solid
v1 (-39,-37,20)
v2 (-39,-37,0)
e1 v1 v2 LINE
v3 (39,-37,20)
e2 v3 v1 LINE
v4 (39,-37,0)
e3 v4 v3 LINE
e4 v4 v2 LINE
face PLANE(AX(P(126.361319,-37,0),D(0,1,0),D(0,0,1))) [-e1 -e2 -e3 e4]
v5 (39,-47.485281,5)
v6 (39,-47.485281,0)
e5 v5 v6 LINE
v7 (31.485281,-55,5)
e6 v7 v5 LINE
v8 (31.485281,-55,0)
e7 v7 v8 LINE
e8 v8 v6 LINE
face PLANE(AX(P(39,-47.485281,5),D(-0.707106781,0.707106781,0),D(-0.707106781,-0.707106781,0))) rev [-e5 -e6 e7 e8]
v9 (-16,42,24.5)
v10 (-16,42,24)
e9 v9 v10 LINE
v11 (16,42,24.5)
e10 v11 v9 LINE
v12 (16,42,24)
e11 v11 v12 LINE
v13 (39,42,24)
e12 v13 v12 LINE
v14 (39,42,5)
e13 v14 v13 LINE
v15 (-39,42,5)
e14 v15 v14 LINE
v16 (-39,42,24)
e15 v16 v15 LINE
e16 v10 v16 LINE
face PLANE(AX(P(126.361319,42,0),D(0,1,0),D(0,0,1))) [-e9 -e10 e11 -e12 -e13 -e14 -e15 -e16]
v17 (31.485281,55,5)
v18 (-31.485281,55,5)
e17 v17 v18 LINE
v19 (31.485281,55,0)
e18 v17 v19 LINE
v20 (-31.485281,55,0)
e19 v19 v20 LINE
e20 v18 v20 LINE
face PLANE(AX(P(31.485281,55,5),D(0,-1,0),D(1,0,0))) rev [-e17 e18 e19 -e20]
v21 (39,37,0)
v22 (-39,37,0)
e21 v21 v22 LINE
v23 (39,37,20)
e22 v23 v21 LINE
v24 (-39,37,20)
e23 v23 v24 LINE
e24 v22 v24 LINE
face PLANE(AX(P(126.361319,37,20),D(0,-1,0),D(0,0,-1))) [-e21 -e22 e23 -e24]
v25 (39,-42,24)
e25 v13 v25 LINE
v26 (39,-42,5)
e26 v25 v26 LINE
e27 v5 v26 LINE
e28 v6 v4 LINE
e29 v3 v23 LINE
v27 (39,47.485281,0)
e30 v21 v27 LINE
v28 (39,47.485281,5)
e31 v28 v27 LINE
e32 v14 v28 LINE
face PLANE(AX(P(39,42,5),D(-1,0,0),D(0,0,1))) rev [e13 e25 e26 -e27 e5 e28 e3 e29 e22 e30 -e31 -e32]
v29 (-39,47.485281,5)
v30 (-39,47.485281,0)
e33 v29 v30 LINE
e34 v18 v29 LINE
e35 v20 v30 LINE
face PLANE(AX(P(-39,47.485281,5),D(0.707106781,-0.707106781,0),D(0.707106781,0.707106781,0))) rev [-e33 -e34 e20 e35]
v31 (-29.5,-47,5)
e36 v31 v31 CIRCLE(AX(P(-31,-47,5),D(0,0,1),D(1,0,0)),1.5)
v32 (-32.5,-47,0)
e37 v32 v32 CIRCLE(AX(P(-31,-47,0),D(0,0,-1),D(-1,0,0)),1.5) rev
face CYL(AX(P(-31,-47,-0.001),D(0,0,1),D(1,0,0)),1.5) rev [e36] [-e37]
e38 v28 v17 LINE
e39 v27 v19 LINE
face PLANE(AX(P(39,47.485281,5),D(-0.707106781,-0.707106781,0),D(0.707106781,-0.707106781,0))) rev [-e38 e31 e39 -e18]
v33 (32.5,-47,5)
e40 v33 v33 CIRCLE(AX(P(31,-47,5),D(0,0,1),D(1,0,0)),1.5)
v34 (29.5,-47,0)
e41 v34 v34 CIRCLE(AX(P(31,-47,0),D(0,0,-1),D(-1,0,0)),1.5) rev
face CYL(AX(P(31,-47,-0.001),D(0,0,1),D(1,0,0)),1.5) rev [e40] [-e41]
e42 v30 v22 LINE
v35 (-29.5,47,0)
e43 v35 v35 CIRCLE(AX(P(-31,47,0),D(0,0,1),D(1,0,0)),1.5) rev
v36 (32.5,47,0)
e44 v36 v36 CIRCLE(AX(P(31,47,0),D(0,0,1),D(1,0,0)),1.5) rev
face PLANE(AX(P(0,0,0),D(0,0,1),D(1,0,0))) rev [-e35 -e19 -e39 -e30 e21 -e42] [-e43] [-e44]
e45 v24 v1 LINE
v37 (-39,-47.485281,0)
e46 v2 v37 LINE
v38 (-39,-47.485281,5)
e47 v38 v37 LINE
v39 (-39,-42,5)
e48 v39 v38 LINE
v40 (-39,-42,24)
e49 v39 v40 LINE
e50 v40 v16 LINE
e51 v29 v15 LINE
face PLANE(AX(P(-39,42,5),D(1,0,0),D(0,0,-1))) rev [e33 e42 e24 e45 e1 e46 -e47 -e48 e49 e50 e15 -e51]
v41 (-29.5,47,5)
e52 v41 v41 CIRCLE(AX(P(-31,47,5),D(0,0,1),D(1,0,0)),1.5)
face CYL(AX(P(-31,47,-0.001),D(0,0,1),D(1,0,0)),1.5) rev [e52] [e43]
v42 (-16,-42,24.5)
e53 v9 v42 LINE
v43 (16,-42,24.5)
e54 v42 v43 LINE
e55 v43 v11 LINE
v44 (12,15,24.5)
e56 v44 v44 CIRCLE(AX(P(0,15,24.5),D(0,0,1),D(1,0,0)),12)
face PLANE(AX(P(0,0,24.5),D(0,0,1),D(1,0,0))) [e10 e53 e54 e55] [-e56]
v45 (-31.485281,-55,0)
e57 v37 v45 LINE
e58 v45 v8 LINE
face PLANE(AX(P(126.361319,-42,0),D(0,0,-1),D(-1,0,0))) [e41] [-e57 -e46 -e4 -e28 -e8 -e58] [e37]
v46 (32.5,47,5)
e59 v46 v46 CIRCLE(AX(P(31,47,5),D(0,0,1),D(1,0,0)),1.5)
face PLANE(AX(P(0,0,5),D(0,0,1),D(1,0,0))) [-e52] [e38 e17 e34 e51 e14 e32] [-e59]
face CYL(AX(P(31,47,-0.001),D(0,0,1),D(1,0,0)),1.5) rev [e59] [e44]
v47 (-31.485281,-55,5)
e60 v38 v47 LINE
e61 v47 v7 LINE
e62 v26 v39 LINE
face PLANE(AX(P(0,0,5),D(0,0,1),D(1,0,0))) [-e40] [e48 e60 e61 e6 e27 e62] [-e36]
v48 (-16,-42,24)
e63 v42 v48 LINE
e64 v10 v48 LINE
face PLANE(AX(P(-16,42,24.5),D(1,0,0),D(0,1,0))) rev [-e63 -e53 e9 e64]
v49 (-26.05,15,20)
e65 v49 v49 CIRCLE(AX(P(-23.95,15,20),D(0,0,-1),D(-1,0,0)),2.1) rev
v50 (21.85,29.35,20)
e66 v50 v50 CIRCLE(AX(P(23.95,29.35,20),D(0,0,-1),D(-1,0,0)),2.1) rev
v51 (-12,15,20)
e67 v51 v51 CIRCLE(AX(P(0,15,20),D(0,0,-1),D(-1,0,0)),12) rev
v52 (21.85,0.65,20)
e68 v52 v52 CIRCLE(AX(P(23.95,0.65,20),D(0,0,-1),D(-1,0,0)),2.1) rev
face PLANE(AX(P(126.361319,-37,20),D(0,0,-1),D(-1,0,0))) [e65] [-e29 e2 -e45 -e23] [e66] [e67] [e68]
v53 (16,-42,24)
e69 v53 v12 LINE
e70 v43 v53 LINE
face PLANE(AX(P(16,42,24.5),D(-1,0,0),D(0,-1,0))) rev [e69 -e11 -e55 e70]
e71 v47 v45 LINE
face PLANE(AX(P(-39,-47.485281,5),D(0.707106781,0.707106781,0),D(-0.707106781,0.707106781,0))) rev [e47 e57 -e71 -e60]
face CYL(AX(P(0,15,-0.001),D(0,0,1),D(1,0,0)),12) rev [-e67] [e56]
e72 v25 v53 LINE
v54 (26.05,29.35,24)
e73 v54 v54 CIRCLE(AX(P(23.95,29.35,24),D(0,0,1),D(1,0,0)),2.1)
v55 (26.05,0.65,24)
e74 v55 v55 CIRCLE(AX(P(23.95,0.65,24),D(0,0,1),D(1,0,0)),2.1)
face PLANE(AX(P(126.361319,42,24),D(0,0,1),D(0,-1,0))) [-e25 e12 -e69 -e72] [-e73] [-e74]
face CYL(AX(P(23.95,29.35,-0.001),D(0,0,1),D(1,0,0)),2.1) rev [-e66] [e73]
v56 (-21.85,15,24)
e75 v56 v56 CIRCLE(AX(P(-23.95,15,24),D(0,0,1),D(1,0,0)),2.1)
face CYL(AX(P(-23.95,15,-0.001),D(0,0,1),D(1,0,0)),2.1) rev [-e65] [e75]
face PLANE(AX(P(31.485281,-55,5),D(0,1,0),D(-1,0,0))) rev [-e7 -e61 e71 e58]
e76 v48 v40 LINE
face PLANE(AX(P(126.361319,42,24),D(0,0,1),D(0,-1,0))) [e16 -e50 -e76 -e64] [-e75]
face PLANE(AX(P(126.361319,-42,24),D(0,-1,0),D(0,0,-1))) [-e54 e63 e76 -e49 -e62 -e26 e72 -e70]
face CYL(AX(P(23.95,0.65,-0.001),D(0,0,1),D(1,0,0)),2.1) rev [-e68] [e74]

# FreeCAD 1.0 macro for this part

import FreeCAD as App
import Part
import Sketcher

doc = App.newDocument("Part")
body = doc.addObject("PartDesign::Body", "Body")

# Sketch on XY plane
sketch1 = body.newObject("Sketcher::SketchObject", "Sketch")
sketch1.AttachmentSupport = (doc.getObject("XY_Plane"), [""])
sketch1.MapMode = "FlatFace"
sketch1.addGeometry(Part.LineSegment(App.Vector(-39, 42, 0), App.Vector(39, 42, 0)), False)
sketch1.addGeometry(Part.LineSegment(App.Vector(39, 42, 0), App.Vector(39, 47.485281, 0)), False)
sketch1.addGeometry(Part.LineSegment(App.Vector(39, 47.485281, 0), App.Vector(31.485281, 55, 0)), False)
sketch1.addGeometry(Part.LineSegment(App.Vector(31.485281, 55, 0), App.Vector(-31.485281, 55, 0)), False)
sketch1.addGeometry(Part.LineSegment(App.Vector(-31.485281, 55, 0), App.Vector(-39, 47.485281, 0)), False)
sketch1.addGeometry(Part.LineSegment(App.Vector(-39, 47.485281, 0), App.Vector(-39, 42, 0)), False)
sketch1.addConstraint(Sketcher.Constraint("Coincident", 0, 2, 1, 1))
sketch1.addConstraint(Sketcher.Constraint("Coincident", 1, 2, 2, 1))
sketch1.addConstraint(Sketcher.Constraint("Coincident", 2, 2, 3, 1))
sketch1.addConstraint(Sketcher.Constraint("Coincident", 3, 2, 4, 1))
sketch1.addConstraint(Sketcher.Constraint("Coincident", 4, 2, 5, 1))
sketch1.addConstraint(Sketcher.Constraint("Coincident", 5, 2, 0, 1))
sketch1.addConstraint(Sketcher.Constraint("Horizontal", 0))
sketch1.addConstraint(Sketcher.Constraint("Vertical", 1))
sketch1.addConstraint(Sketcher.Constraint("Horizontal", 3))
sketch1.addConstraint(Sketcher.Constraint("Vertical", 5))
sketch1.addConstraint(Sketcher.Constraint("Symmetric", 1, 2, 4, 2, -2))
sketch1.addConstraint(Sketcher.Constraint("Perpendicular", 2, 4))
sketch1.addConstraint(Sketcher.Constraint("Equal", 2, 4))
sketch1.addConstraint(Sketcher.Constraint("DistanceX", 0, 1, 0, 2, 78.0))
sketch1.addConstraint(Sketcher.Constraint("DistanceY", -1, 1, 0, 2, 42.0))
sketch1.addConstraint(Sketcher.Constraint("DistanceY", -1, 1, 2, 2, 55.0))
sketch1.addConstraint(Sketcher.Constraint("DistanceY", 1, 1, 1, 2, 5.485281))
pad1 = body.newObject("PartDesign::Pad", "Pad")
pad1.Profile = sketch1
pad1.Length = 5
body2 = doc.addObject("PartDesign::Body", "Body001")

# Sketch on XY plane
sketch2 = body2.newObject("Sketcher::SketchObject", "Sketch001")
sketch2.AttachmentSupport = (doc.getObject("XY_Plane001"), [""])
sketch2.MapMode = "FlatFace"
sketch2.addGeometry(Part.LineSegment(App.Vector(-31.485281, -55, 0), App.Vector(31.485281, -55, 0)), False)
sketch2.addGeometry(Part.LineSegment(App.Vector(31.485281, -55, 0), App.Vector(39, -47.485281, 0)), False)
sketch2.addGeometry(Part.LineSegment(App.Vector(39, -47.485281, 0), App.Vector(39, -42, 0)), False)
sketch2.addGeometry(Part.LineSegment(App.Vector(39, -42, 0), App.Vector(-39, -42, 0)), False)
sketch2.addGeometry(Part.LineSegment(App.Vector(-39, -42, 0), App.Vector(-39, -47.485281, 0)), False)
sketch2.addGeometry(Part.LineSegment(App.Vector(-39, -47.485281, 0), App.Vector(-31.485281, -55, 0)), False)
sketch2.addConstraint(Sketcher.Constraint("Coincident", 0, 2, 1, 1))
sketch2.addConstraint(Sketcher.Constraint("Coincident", 1, 2, 2, 1))
sketch2.addConstraint(Sketcher.Constraint("Coincident", 2, 2, 3, 1))
sketch2.addConstraint(Sketcher.Constraint("Coincident", 3, 2, 4, 1))
sketch2.addConstraint(Sketcher.Constraint("Coincident", 4, 2, 5, 1))
sketch2.addConstraint(Sketcher.Constraint("Coincident", 5, 2, 0, 1))
sketch2.addConstraint(Sketcher.Constraint("Horizontal", 0))
sketch2.addConstraint(Sketcher.Constraint("Vertical", 2))
sketch2.addConstraint(Sketcher.Constraint("Horizontal", 3))
sketch2.addConstraint(Sketcher.Constraint("Vertical", 4))
sketch2.addConstraint(Sketcher.Constraint("Symmetric", 1, 2, 4, 2, -2))
sketch2.addConstraint(Sketcher.Constraint("Perpendicular", 1, 5))
sketch2.addConstraint(Sketcher.Constraint("Equal", 1, 5))
sketch2.addConstraint(Sketcher.Constraint("DistanceX", 3, 2, 3, 1, 78.0))
sketch2.addConstraint(Sketcher.Constraint("DistanceY", 0, 2, -1, 1, 55.0))
sketch2.addConstraint(Sketcher.Constraint("DistanceY", 2, 2, -1, 1, 42.0))
sketch2.addConstraint(Sketcher.Constraint("DistanceY", 2, 1, 2, 2, 5.485281))
pad2 = body2.newObject("PartDesign::Pad", "Pad001")
pad2.Profile = sketch2
pad2.Length = 5
body.AllowCompound = True
doc.recompute()

boolean = body.newObject("PartDesign::Boolean", "Boolean")
boolean.Type = "Fuse"
boolean.addObjects([body2])

# Sketch on YZ plane
sketch3 = body.newObject("Sketcher::SketchObject", "Sketch002")
sketch3.AttachmentSupport = (doc.getObject("YZ_Plane"), [""])
sketch3.MapMode = "FlatFace"
sketch3.AttachmentOffset = App.Placement(App.Vector(0, 0, -39), App.Rotation())
sketch3.addGeometry(Part.LineSegment(App.Vector(42, 24, 0), App.Vector(42, 0, 0)), False)
sketch3.addGeometry(Part.LineSegment(App.Vector(42, 0, 0), App.Vector(37, 0, 0)), False)
sketch3.addGeometry(Part.LineSegment(App.Vector(37, 0, 0), App.Vector(37, 20, 0)), False)
sketch3.addGeometry(Part.LineSegment(App.Vector(37, 20, 0), App.Vector(-37, 20, 0)), False)
sketch3.addGeometry(Part.LineSegment(App.Vector(-37, 20, 0), App.Vector(-37, 0, 0)), False)
sketch3.addGeometry(Part.LineSegment(App.Vector(-37, 0, 0), App.Vector(-42, 0, 0)), False)
sketch3.addGeometry(Part.LineSegment(App.Vector(-42, 0, 0), App.Vector(-42, 24, 0)), False)
sketch3.addGeometry(Part.LineSegment(App.Vector(-42, 24, 0), App.Vector(42, 24, 0)), False)
sketch3.addConstraint(Sketcher.Constraint("Coincident", 0, 2, 1, 1))
sketch3.addConstraint(Sketcher.Constraint("Coincident", 1, 2, 2, 1))
sketch3.addConstraint(Sketcher.Constraint("Coincident", 2, 2, 3, 1))
sketch3.addConstraint(Sketcher.Constraint("Coincident", 3, 2, 4, 1))
sketch3.addConstraint(Sketcher.Constraint("Coincident", 4, 2, 5, 1))
sketch3.addConstraint(Sketcher.Constraint("Coincident", 5, 2, 6, 1))
sketch3.addConstraint(Sketcher.Constraint("Coincident", 6, 2, 7, 1))
sketch3.addConstraint(Sketcher.Constraint("Coincident", 7, 2, 0, 1))
sketch3.addConstraint(Sketcher.Constraint("Vertical", 0))
sketch3.addConstraint(Sketcher.Constraint("Horizontal", 1))
sketch3.addConstraint(Sketcher.Constraint("Vertical", 2))
sketch3.addConstraint(Sketcher.Constraint("Horizontal", 3))
sketch3.addConstraint(Sketcher.Constraint("Vertical", 4))
sketch3.addConstraint(Sketcher.Constraint("Horizontal", 5))
sketch3.addConstraint(Sketcher.Constraint("Vertical", 6))
sketch3.addConstraint(Sketcher.Constraint("Horizontal", 7))
sketch3.addConstraint(Sketcher.Constraint("Symmetric", 1, 2, 4, 2, -1, 1))
sketch3.addConstraint(Sketcher.Constraint("Symmetric", 0, 2, 5, 2, -2))
sketch3.addConstraint(Sketcher.Constraint("DistanceX", 1, 2, 1, 1, 5.0))
sketch3.addConstraint(Sketcher.Constraint("DistanceX", 3, 2, 3, 1, 74.0))
sketch3.addConstraint(Sketcher.Constraint("DistanceY", 0, 2, 0, 1, 24.0))
sketch3.addConstraint(Sketcher.Constraint("DistanceY", 2, 1, 2, 2, 20.0))
pad3 = body.newObject("PartDesign::Pad", "Pad002")
pad3.Profile = sketch3
pad3.Length = 78

# Sketch on XY plane
sketch4 = body.newObject("Sketcher::SketchObject", "Sketch003")
sketch4.AttachmentSupport = (doc.getObject("XY_Plane"), [""])
sketch4.MapMode = "FlatFace"
sketch4.AttachmentOffset = App.Placement(App.Vector(0, 0, 24), App.Rotation())
sketch4.addGeometry(Part.Circle(App.Vector(0, 15, 0), App.Vector(0, 0, 1), 12), False)
sketch4.addConstraint(Sketcher.Constraint("PointOnObject", 0, 3, -2))
sketch4.addConstraint(Sketcher.Constraint("Diameter", 0, 24.0))
sketch4.addConstraint(Sketcher.Constraint("DistanceY", -1, 1, 0, 3, 15.0))
pocket1 = body.newObject("PartDesign::Pocket", "Pocket")
pocket1.Profile = sketch4
pocket1.Type = "UpToFirst"

# Sketch on XY plane
sketch5 = body.newObject("Sketcher::SketchObject", "Sketch004")
sketch5.AttachmentSupport = (doc.getObject("XY_Plane"), [""])
sketch5.MapMode = "FlatFace"
sketch5.AttachmentOffset = App.Placement(App.Vector(0, 0, 24.5), App.Rotation())
sketch5.addGeometry(Part.LineSegment(App.Vector(-16, 42, 0), App.Vector(-16, -42, 0)), False)
sketch5.addGeometry(Part.LineSegment(App.Vector(-16, -42, 0), App.Vector(16, -42, 0)), False)
sketch5.addGeometry(Part.LineSegment(App.Vector(16, -42, 0), App.Vector(16, 42, 0)), False)
sketch5.addGeometry(Part.LineSegment(App.Vector(16, 42, 0), App.Vector(-16, 42, 0)), False)
sketch5.addGeometry(Part.Circle(App.Vector(0, 15, 0), App.Vector(0, 0, 1), 12), False)
sketch5.addConstraint(Sketcher.Constraint("Coincident", 0, 2, 1, 1))
sketch5.addConstraint(Sketcher.Constraint("Coincident", 1, 2, 2, 1))
sketch5.addConstraint(Sketcher.Constraint("Coincident", 2, 2, 3, 1))
sketch5.addConstraint(Sketcher.Constraint("Coincident", 3, 2, 0, 1))
sketch5.addConstraint(Sketcher.Constraint("Vertical", 0))
sketch5.addConstraint(Sketcher.Constraint("Horizontal", 1))
sketch5.addConstraint(Sketcher.Constraint("Vertical", 2))
sketch5.addConstraint(Sketcher.Constraint("Horizontal", 3))
sketch5.addConstraint(Sketcher.Constraint("Symmetric", 0, 2, 2, 2, -1, 1))
sketch5.addConstraint(Sketcher.Constraint("PointOnObject", 4, 3, -2))
sketch5.addConstraint(Sketcher.Constraint("Diameter", 4, 24.0))
sketch5.addConstraint(Sketcher.Constraint("DistanceX", 1, 1, 1, 2, 32.0))
sketch5.addConstraint(Sketcher.Constraint("DistanceY", 0, 2, 0, 1, 84.0))
sketch5.addConstraint(Sketcher.Constraint("DistanceY", -1, 1, 4, 3, 15.0))
pad4 = body.newObject("PartDesign::Pad", "Pad003")
pad4.Profile = sketch5
pad4.Length = 0.5
pad4.Reversed = True

# Sketch on XY plane
sketch6 = body.newObject("Sketcher::SketchObject", "Sketch005")
sketch6.AttachmentSupport = (doc.getObject("XY_Plane"), [""])
sketch6.MapMode = "FlatFace"
sketch6.AttachmentOffset = App.Placement(App.Vector(0, 0, 24), App.Rotation())
sketch6.addGeometry(Part.Circle(App.Vector(-23.95, 15, 0), App.Vector(0, 0, 1), 2.1), False)
sketch6.addConstraint(Sketcher.Constraint("Diameter", 0, 4.2))
sketch6.addConstraint(Sketcher.Constraint("DistanceY", -1, 1, 0, 3, 15.0))
sketch6.addConstraint(Sketcher.Constraint("DistanceX", 0, 3, -1, 1, 23.95))
pocket2 = body.newObject("PartDesign::Pocket", "Pocket001")
pocket2.Profile = sketch6
pocket2.Type = "UpToFirst"

# Sketch on XY plane
sketch7 = body.newObject("Sketcher::SketchObject", "Sketch006")
sketch7.AttachmentSupport = (doc.getObject("XY_Plane"), [""])
sketch7.MapMode = "FlatFace"
sketch7.AttachmentOffset = App.Placement(App.Vector(0, 0, 24), App.Rotation())
sketch7.addGeometry(Part.Circle(App.Vector(23.95, 29.35, 0), App.Vector(0, 0, 1), 2.1), False)
sketch7.addConstraint(Sketcher.Constraint("Diameter", 0, 4.2))
sketch7.addConstraint(Sketcher.Constraint("DistanceX", -1, 1, 0, 3, 23.95))
sketch7.addConstraint(Sketcher.Constraint("DistanceY", -1, 1, 0, 3, 29.35))
pocket3 = body.newObject("PartDesign::Pocket", "Pocket002")
pocket3.Profile = sketch7
pocket3.Type = "UpToFirst"

# Sketch on XY plane
sketch8 = body.newObject("Sketcher::SketchObject", "Sketch007")
sketch8.AttachmentSupport = (doc.getObject("XY_Plane"), [""])
sketch8.MapMode = "FlatFace"
sketch8.AttachmentOffset = App.Placement(App.Vector(0, 0, 24), App.Rotation())
sketch8.addGeometry(Part.Circle(App.Vector(23.95, 0.65, 0), App.Vector(0, 0, 1), 2.1), False)
sketch8.addConstraint(Sketcher.Constraint("Diameter", 0, 4.2))
sketch8.addConstraint(Sketcher.Constraint("DistanceX", -1, 1, 0, 3, 23.95))
sketch8.addConstraint(Sketcher.Constraint("DistanceY", -1, 1, 0, 3, 0.65))
pocket4 = body.newObject("PartDesign::Pocket", "Pocket003")
pocket4.Profile = sketch8
pocket4.Type = "UpToFirst"

# Sketch on XY plane
sketch9 = body.newObject("Sketcher::SketchObject", "Sketch008")
sketch9.AttachmentSupport = (doc.getObject("XY_Plane"), [""])
sketch9.MapMode = "FlatFace"
sketch9.AttachmentOffset = App.Placement(App.Vector(0, 0, 5), App.Rotation())
sketch9.addGeometry(Part.Circle(App.Vector(-31, 47, 0), App.Vector(0, 0, 1), 1.5), False)
sketch9.addConstraint(Sketcher.Constraint("Diameter", 0, 3.0))
sketch9.addConstraint(Sketcher.Constraint("DistanceX", 0, 3, -1, 1, 31.0))
sketch9.addConstraint(Sketcher.Constraint("DistanceY", -1, 1, 0, 3, 47.0))
pocket5 = body.newObject("PartDesign::Pocket", "Pocket004")
pocket5.Profile = sketch9
pocket5.Type = "UpToFirst"

# Sketch on XY plane
sketch10 = body.newObject("Sketcher::SketchObject", "Sketch009")
sketch10.AttachmentSupport = (doc.getObject("XY_Plane"), [""])
sketch10.MapMode = "FlatFace"
sketch10.AttachmentOffset = App.Placement(App.Vector(0, 0, 5), App.Rotation())
sketch10.addGeometry(Part.Circle(App.Vector(31, 47, 0), App.Vector(0, 0, 1), 1.5), False)
sketch10.addConstraint(Sketcher.Constraint("Diameter", 0, 3.0))
sketch10.addConstraint(Sketcher.Constraint("DistanceX", -1, 1, 0, 3, 31.0))
sketch10.addConstraint(Sketcher.Constraint("DistanceY", -1, 1, 0, 3, 47.0))
pocket6 = body.newObject("PartDesign::Pocket", "Pocket005")
pocket6.Profile = sketch10
pocket6.Type = "UpToFirst"

# Sketch on XY plane
sketch11 = body.newObject("Sketcher::SketchObject", "Sketch010")
sketch11.AttachmentSupport = (doc.getObject("XY_Plane"), [""])
sketch11.MapMode = "FlatFace"
sketch11.AttachmentOffset = App.Placement(App.Vector(0, 0, 5), App.Rotation())
sketch11.addGeometry(Part.Circle(App.Vector(31, -47, 0), App.Vector(0, 0, 1), 1.5), False)
sketch11.addConstraint(Sketcher.Constraint("Diameter", 0, 3.0))
sketch11.addConstraint(Sketcher.Constraint("DistanceX", -1, 1, 0, 3, 31.0))
sketch11.addConstraint(Sketcher.Constraint("DistanceY", 0, 3, -1, 1, 47.0))
pocket7 = body.newObject("PartDesign::Pocket", "Pocket006")
pocket7.Profile = sketch11
pocket7.Type = "UpToFirst"

# Sketch on XY plane
sketch12 = body.newObject("Sketcher::SketchObject", "Sketch011")
sketch12.AttachmentSupport = (doc.getObject("XY_Plane"), [""])
sketch12.MapMode = "FlatFace"
sketch12.AttachmentOffset = App.Placement(App.Vector(0, 0, 5), App.Rotation())
sketch12.addGeometry(Part.Circle(App.Vector(-31, -47, 0), App.Vector(0, 0, 1), 1.5), False)
sketch12.addConstraint(Sketcher.Constraint("Diameter", 0, 3.0))
sketch12.addConstraint(Sketcher.Constraint("DistanceX", 0, 3, -1, 1, 31.0))
sketch12.addConstraint(Sketcher.Constraint("DistanceY", 0, 3, -1, 1, 47.0))
pocket8 = body.newObject("PartDesign::Pocket", "Pocket007")
pocket8.Profile = sketch12
pocket8.Type = "UpToFirst"

doc.recompute()
